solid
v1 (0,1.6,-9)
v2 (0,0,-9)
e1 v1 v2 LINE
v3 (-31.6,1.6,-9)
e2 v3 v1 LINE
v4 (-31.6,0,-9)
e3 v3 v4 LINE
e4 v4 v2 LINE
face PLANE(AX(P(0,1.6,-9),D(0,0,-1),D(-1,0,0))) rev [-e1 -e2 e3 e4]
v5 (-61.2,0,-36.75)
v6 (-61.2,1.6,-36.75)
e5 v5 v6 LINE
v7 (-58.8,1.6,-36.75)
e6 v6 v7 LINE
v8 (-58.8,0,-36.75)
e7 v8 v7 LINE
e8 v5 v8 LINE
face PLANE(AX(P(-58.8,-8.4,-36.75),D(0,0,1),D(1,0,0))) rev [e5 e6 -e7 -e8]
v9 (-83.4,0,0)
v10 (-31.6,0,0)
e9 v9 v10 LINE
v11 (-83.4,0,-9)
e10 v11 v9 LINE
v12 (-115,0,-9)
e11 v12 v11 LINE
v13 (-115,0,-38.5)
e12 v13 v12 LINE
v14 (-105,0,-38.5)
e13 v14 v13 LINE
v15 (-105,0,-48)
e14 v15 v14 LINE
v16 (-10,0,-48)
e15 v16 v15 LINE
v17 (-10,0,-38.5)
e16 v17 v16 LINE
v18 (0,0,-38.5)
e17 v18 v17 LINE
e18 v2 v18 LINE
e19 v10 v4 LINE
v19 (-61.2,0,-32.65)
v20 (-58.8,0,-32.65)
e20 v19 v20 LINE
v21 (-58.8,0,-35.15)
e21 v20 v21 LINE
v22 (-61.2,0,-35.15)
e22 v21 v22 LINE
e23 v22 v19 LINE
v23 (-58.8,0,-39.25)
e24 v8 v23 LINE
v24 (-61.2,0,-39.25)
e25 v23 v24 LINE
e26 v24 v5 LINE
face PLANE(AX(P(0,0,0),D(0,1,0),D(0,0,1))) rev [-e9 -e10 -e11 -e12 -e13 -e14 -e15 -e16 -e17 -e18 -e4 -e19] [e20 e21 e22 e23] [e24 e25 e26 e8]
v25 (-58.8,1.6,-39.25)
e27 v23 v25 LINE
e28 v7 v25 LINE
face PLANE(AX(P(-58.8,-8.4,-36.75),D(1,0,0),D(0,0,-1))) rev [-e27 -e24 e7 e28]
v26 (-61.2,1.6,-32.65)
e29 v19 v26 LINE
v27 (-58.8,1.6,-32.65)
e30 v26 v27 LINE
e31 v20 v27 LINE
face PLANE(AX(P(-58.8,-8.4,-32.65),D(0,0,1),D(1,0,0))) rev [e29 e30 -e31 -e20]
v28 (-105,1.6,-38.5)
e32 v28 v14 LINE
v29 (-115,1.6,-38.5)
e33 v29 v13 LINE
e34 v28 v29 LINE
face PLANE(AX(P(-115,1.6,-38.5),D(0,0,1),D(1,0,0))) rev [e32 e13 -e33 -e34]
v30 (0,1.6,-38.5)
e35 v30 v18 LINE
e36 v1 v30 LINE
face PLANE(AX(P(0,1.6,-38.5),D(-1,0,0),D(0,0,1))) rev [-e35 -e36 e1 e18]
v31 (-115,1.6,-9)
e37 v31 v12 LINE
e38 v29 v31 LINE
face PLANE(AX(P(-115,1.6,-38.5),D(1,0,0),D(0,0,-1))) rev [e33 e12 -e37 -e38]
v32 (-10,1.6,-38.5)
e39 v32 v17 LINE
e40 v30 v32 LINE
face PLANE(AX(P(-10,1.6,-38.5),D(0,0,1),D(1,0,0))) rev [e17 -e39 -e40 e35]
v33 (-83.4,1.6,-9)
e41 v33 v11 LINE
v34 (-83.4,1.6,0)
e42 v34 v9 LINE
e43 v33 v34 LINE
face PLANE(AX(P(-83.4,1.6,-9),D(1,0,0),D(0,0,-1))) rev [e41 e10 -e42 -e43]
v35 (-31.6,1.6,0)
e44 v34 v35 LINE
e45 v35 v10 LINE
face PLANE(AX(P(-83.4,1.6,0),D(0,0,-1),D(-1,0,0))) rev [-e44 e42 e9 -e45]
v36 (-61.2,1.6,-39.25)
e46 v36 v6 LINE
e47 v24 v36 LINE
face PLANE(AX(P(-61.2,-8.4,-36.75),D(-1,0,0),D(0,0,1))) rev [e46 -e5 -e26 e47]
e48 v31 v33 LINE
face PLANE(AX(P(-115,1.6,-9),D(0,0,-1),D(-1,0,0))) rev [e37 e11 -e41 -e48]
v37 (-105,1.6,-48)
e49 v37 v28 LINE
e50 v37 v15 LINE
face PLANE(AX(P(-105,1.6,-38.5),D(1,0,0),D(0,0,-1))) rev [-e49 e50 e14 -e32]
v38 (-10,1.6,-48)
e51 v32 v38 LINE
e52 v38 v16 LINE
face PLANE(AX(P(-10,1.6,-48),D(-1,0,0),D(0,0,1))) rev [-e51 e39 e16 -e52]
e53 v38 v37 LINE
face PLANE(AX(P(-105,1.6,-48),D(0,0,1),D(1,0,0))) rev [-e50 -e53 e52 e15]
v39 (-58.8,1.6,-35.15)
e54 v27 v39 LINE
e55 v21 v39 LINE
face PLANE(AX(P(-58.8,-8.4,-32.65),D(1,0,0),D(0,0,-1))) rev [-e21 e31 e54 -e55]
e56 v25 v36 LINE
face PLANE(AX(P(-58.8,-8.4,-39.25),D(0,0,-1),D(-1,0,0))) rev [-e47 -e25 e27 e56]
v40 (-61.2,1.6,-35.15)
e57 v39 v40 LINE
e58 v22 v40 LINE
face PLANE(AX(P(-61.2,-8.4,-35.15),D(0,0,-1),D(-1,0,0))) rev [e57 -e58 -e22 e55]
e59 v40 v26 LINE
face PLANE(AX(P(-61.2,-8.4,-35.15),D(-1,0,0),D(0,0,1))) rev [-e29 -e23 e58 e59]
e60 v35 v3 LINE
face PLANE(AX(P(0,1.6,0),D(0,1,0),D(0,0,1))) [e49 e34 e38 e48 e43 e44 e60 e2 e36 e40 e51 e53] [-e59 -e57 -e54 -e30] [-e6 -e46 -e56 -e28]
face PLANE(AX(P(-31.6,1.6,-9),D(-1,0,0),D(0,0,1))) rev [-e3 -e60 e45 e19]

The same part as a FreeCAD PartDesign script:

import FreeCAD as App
import Part
import Sketcher
Q = App.Units.Quantity

doc = App.newDocument("Part")
params = doc.addObject("Spreadsheet::Sheet", "Params")
for row, (alias, value) in enumerate([
    ("sketch1_width", "10 mm"),
    ("sketch1_width2", "95 mm"),
    ("sketch1_height", "9 mm"),
    ("sketch1_width3", "31.6 mm"),
    ("sketch1_height2", "29.5 mm"),
    ("pad1_length", "1.6 mm"),
    ("sketch2_width", "2.4 mm"),
    ("sketch2_height", "2.5 mm"),
    ("pocket1_length", "10 mm"),
], start=1):
    params.set(f"A{row}", alias)
    params.set(f"B{row}", "=" + value)
    params.setAlias(f"B{row}", alias)

body = doc.addObject("PartDesign::Body", "Body")

# Sketch on XZ plane
sketch1 = body.newObject("Sketcher::SketchObject", "Sketch")
sketch1.AttachmentSupport = (doc.getObject("XZ_Plane"), [""])
sketch1.MapMode = "FlatFace"
sketch1.addGeometry([
    Part.LineSegment(App.Vector(-115, -9, 0), App.Vector(-83, -9, 0)),  # 0
    Part.LineSegment(App.Vector(-83, -9, 0), App.Vector(-83, 0, 0)),  # 1
    Part.LineSegment(App.Vector(-83, 0, 0), App.Vector(-32, 0, 0)),  # 2
    Part.LineSegment(App.Vector(-32, 0, 0), App.Vector(-32, -9, 0)),  # 3
    Part.LineSegment(App.Vector(-32, -9, 0), App.Vector(0, -9, 0)),  # 4
    Part.LineSegment(App.Vector(0, -9, 0), App.Vector(0, -38, 0)),  # 5
    Part.LineSegment(App.Vector(0, -38, 0), App.Vector(-10, -38, 0)),  # 6
    Part.LineSegment(App.Vector(-10, -38, 0), App.Vector(-10, -48, 0)),  # 7
    Part.LineSegment(App.Vector(-10, -48, 0), App.Vector(-105, -48, 0)),  # 8
    Part.LineSegment(App.Vector(-105, -48, 0), App.Vector(-105, -38, 0)),  # 9
    Part.LineSegment(App.Vector(-105, -38, 0), App.Vector(-115, -38, 0)),  # 10
    Part.LineSegment(App.Vector(-115, -38, 0), App.Vector(-115, -9, 0)),  # 11
], False)
sketch1.addConstraint([
    Sketcher.Constraint("Coincident", 0, 2, 1, 1),
    Sketcher.Constraint("Coincident", 1, 2, 2, 1),
    Sketcher.Constraint("Coincident", 2, 2, 3, 1),
    Sketcher.Constraint("Coincident", 3, 2, 4, 1),
    Sketcher.Constraint("Coincident", 4, 2, 5, 1),
    Sketcher.Constraint("Coincident", 5, 2, 6, 1),
    Sketcher.Constraint("Coincident", 6, 2, 7, 1),
    Sketcher.Constraint("Coincident", 7, 2, 8, 1),
    Sketcher.Constraint("Coincident", 8, 2, 9, 1),
    Sketcher.Constraint("Coincident", 9, 2, 10, 1),
    Sketcher.Constraint("Coincident", 10, 2, 11, 1),
    Sketcher.Constraint("Coincident", 11, 2, 0, 1),
    Sketcher.Constraint("Horizontal", 0),
    Sketcher.Constraint("Vertical", 1),
    Sketcher.Constraint("Horizontal", 2),
    Sketcher.Constraint("Vertical", 3),
    Sketcher.Constraint("Horizontal", 4),
    Sketcher.Constraint("Vertical", 5),
    Sketcher.Constraint("Horizontal", 6),
    Sketcher.Constraint("Vertical", 7),
    Sketcher.Constraint("Horizontal", 8),
    Sketcher.Constraint("Vertical", 9),
    Sketcher.Constraint("Horizontal", 10),
    Sketcher.Constraint("Vertical", 11),
    Sketcher.Constraint("PointOnObject", 1, 2, -1),
    Sketcher.Constraint("PointOnObject", 4, 2, -2),
    Sketcher.Constraint("Horizontal", 0, 2, 3, 2),
    Sketcher.Constraint("Horizontal", 6, 2, 9, 2),
    Sketcher.Constraint("Equal", 0, 4),
    Sketcher.Constraint("Equal", 6, 10),
    Sketcher.Constraint("DistanceX", 6, 2, 6, 1, Q("10 mm")),
    Sketcher.Constraint("DistanceX", 8, 2, 8, 1, Q("95 mm")),
    Sketcher.Constraint("DistanceY", 1, 1, 1, 2, Q("9 mm")),
    Sketcher.Constraint("DistanceX", 0, 1, 0, 2, Q("31.6 mm")),
    Sketcher.Constraint("DistanceY", 5, 2, 5, 1, Q("29.5 mm")),
    Sketcher.Constraint("DistanceY", 7, 2, 7, 1, Q("9.5 mm")),
])
sketch1.setExpression("Constraints[30]", "Params.sketch1_width")
sketch1.setExpression("Constraints[31]", "Params.sketch1_width2")
sketch1.setExpression("Constraints[32]", "Params.sketch1_height")
sketch1.setExpression("Constraints[33]", "Params.sketch1_width3")
sketch1.setExpression("Constraints[34]", "Params.sketch1_height2")
pad1 = body.newObject("PartDesign::Pad", "Pad")
pad1.Profile = sketch1
pad1.setExpression("Length", "Params.pad1_length")
pad1.Reversed = True

# Sketch on XZ plane
sketch2 = body.newObject("Sketcher::SketchObject", "Sketch001")
sketch2.AttachmentSupport = (doc.getObject("XZ_Plane"), [""])
sketch2.MapMode = "FlatFace"
sketch2.AttachmentOffset = App.Placement(App.Vector(0, 0, -1.6), App.Rotation())
sketch2.addGeometry([
    Part.LineSegment(App.Vector(-61.2, -39.2, 0), App.Vector(-61.2, -36.8, 0)),  # 0
    Part.LineSegment(App.Vector(-61.2, -36.8, 0), App.Vector(-58.8, -36.8, 0)),  # 1
    Part.LineSegment(App.Vector(-58.8, -36.8, 0), App.Vector(-58.8, -39.2, 0)),  # 2
    Part.LineSegment(App.Vector(-58.8, -39.2, 0), App.Vector(-61.2, -39.2, 0)),  # 3
    Part.LineSegment(App.Vector(-61.2, -35.1, 0), App.Vector(-61.2, -32.6, 0)),  # 4
    Part.LineSegment(App.Vector(-61.2, -32.6, 0), App.Vector(-58.8, -32.6, 0)),  # 5
    Part.LineSegment(App.Vector(-58.8, -32.6, 0), App.Vector(-58.8, -35.1, 0)),  # 6
    Part.LineSegment(App.Vector(-58.8, -35.1, 0), App.Vector(-61.2, -35.1, 0)),  # 7
], False)
sketch2.addConstraint([
    Sketcher.Constraint("Coincident", 0, 2, 1, 1),
    Sketcher.Constraint("Coincident", 1, 2, 2, 1),
    Sketcher.Constraint("Coincident", 2, 2, 3, 1),
    Sketcher.Constraint("Coincident", 3, 2, 0, 1),
    Sketcher.Constraint("Coincident", 4, 2, 5, 1),
    Sketcher.Constraint("Coincident", 5, 2, 6, 1),
    Sketcher.Constraint("Coincident", 6, 2, 7, 1),
    Sketcher.Constraint("Coincident", 7, 2, 4, 1),
    Sketcher.Constraint("Vertical", 0),
    Sketcher.Constraint("Horizontal", 1),
    Sketcher.Constraint("Vertical", 2),
    Sketcher.Constraint("Horizontal", 3),
    Sketcher.Constraint("Vertical", 4),
    Sketcher.Constraint("Horizontal", 5),
    Sketcher.Constraint("Vertical", 6),
    Sketcher.Constraint("Horizontal", 7),
    Sketcher.Constraint("Vertical", 3, 2, 4, 2),
    Sketcher.Constraint("Vertical", 2, 2, 5, 2),
    Sketcher.Constraint("Equal", 2, 4),
    Sketcher.Constraint("DistanceX", 1, 1, 1, 2, Q("2.4 mm")),
    Sketcher.Constraint("DistanceY", 0, 1, 0, 2, Q("2.5 mm")),
    Sketcher.Constraint("DistanceX", 0, 2, -1, 1, Q("61.2 mm")),
    Sketcher.Constraint("DistanceY", 0, 2, 4, 2, Q("4.1 mm")),
    Sketcher.Constraint("DistanceY", 0, 2, -1, 1, Q("36.75 mm")),
])
sketch2.setExpression("Constraints[19]", "Params.sketch2_width")
sketch2.setExpression("Constraints[20]", "Params.sketch2_height")
pocket1 = body.newObject("PartDesign::Pocket", "Pocket")
pocket1.Profile = sketch2
pocket1.setExpression("Length", "Params.pocket1_length")
pocket1.Reversed = True

doc.recompute()
